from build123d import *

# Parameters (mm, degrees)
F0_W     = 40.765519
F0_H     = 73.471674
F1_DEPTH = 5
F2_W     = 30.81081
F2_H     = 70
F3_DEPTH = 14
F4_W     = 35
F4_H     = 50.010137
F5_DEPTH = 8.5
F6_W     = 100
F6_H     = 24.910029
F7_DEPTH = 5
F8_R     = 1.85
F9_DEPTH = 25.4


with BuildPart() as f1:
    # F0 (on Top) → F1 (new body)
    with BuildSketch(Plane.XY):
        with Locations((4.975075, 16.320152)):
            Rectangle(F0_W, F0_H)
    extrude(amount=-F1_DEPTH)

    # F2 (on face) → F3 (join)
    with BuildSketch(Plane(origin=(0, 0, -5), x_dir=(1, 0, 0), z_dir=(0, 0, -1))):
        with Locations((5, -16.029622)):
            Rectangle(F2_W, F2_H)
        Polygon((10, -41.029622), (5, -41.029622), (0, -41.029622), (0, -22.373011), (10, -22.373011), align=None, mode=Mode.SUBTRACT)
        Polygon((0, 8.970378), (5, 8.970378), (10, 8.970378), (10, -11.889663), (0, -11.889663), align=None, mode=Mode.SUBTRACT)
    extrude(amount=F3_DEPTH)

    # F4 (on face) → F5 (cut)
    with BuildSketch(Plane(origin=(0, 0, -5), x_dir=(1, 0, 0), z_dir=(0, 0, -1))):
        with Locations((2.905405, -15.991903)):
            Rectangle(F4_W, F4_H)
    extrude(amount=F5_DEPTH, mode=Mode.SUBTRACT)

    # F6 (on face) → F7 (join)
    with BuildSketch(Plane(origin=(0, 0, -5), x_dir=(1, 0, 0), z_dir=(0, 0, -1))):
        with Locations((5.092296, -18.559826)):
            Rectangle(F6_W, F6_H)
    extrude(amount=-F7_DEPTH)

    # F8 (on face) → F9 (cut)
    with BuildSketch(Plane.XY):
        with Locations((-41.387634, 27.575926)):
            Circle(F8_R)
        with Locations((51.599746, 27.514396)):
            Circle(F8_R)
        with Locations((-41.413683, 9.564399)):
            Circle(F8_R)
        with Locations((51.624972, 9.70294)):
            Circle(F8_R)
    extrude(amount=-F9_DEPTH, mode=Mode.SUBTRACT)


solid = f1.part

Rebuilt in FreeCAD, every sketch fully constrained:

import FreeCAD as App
import Part
import Sketcher

V = App.Vector

doc = App.newDocument("Part")
body = doc.addObject("PartDesign::Body", "Body")

# Sketch on XY plane
sketch1 = body.newObject("Sketcher::SketchObject", "Sketch")
sketch1.AttachmentSupport = (doc.getObject("XY_Plane"), [""])
sketch1.MapMode = "FlatFace"
sketch1.addGeometry(Part.LineSegment(V(-15.407685, 53.055989, 0), V(-15.407685, -20.415685, 0)), False)
sketch1.addGeometry(Part.LineSegment(V(-15.407685, -20.415685, 0), V(25.357834, -20.415685, 0)), False)
sketch1.addGeometry(Part.LineSegment(V(25.357834, -20.415685, 0), V(25.357834, 53.055989, 0)), False)
sketch1.addGeometry(Part.LineSegment(V(25.357834, 53.055989, 0), V(-15.407685, 53.055989, 0)), False)
sketch1.addConstraint(Sketcher.Constraint("Coincident", 0, 2, 1, 1))
sketch1.addConstraint(Sketcher.Constraint("Coincident", 1, 2, 2, 1))
sketch1.addConstraint(Sketcher.Constraint("Coincident", 2, 2, 3, 1))
sketch1.addConstraint(Sketcher.Constraint("Coincident", 3, 2, 0, 1))
sketch1.addConstraint(Sketcher.Constraint("Vertical", 0))
sketch1.addConstraint(Sketcher.Constraint("Horizontal", 1))
sketch1.addConstraint(Sketcher.Constraint("Vertical", 2))
sketch1.addConstraint(Sketcher.Constraint("Horizontal", 3))
sketch1.addConstraint(Sketcher.Constraint("DistanceX", 1, 1, 1, 2, 40.765519))
sketch1.addConstraint(Sketcher.Constraint("DistanceY", 0, 2, 0, 1, 73.471674))
sketch1.addConstraint(Sketcher.Constraint("DistanceY", -1, 1, 2, 2, 53.055989))
sketch1.addConstraint(Sketcher.Constraint("DistanceX", 0, 2, -1, 1, 15.407685))
pad1 = body.newObject("PartDesign::Pad", "Pad")
pad1.Profile = sketch1
pad1.Length = 5
pad1.Reversed = True

# Sketch on XY plane
sketch2 = body.newObject("Sketcher::SketchObject", "Sketch001")
sketch2.AttachmentSupport = (doc.getObject("XY_Plane"), [""])
sketch2.MapMode = "FlatFace"
sketch2.AttachmentOffset = App.Placement(V(0, 0, -5), App.Rotation())
sketch2.addGeometry(Part.LineSegment(V(-10.405405, -18.970378, 0), V(-10.405405, 51.029622, 0)), False)
sketch2.addGeometry(Part.LineSegment(V(-10.405405, 51.029622, 0), V(20.405405, 51.029622, 0)), False)
sketch2.addGeometry(Part.LineSegment(V(20.405405, 51.029622, 0), V(20.405405, -18.970378, 0)), False)
sketch2.addGeometry(Part.LineSegment(V(20.405405, -18.970378, 0), V(-10.405405, -18.970378, 0)), False)
sketch2.addGeometry(Part.LineSegment(V(10, 22.373011, 0), V(10, 41.029622, 0)), False)
sketch2.addGeometry(Part.LineSegment(V(10, 41.029622, 0), V(0, 41.029622, 0)), False)
sketch2.addGeometry(Part.LineSegment(V(0, 41.029622, 0), V(0, 22.373011, 0)), False)
sketch2.addGeometry(Part.LineSegment(V(0, 22.373011, 0), V(10, 22.373011, 0)), False)
sketch2.addGeometry(Part.LineSegment(V(0, 11.889663, 0), V(0, -8.970378, 0)), False)
sketch2.addGeometry(Part.LineSegment(V(0, -8.970378, 0), V(10, -8.970378, 0)), False)
sketch2.addGeometry(Part.LineSegment(V(10, -8.970378, 0), V(10, 11.889663, 0)), False)
sketch2.addGeometry(Part.LineSegment(V(10, 11.889663, 0), V(0, 11.889663, 0)), False)
sketch2.addConstraint(Sketcher.Constraint("Coincident", 0, 2, 1, 1))
sketch2.addConstraint(Sketcher.Constraint("Coincident", 1, 2, 2, 1))
sketch2.addConstraint(Sketcher.Constraint("Coincident", 2, 2, 3, 1))
sketch2.addConstraint(Sketcher.Constraint("Coincident", 3, 2, 0, 1))
sketch2.addConstraint(Sketcher.Constraint("Coincident", 4, 2, 5, 1))
sketch2.addConstraint(Sketcher.Constraint("Coincident", 5, 2, 6, 1))
sketch2.addConstraint(Sketcher.Constraint("Coincident", 6, 2, 7, 1))
sketch2.addConstraint(Sketcher.Constraint("Coincident", 7, 2, 4, 1))
sketch2.addConstraint(Sketcher.Constraint("Coincident", 8, 2, 9, 1))
sketch2.addConstraint(Sketcher.Constraint("Coincident", 9, 2, 10, 1))
sketch2.addConstraint(Sketcher.Constraint("Coincident", 10, 2, 11, 1))
sketch2.addConstraint(Sketcher.Constraint("Coincident", 11, 2, 8, 1))
sketch2.addConstraint(Sketcher.Constraint("Vertical", 0))
sketch2.addConstraint(Sketcher.Constraint("Horizontal", 1))
sketch2.addConstraint(Sketcher.Constraint("Vertical", 2))
sketch2.addConstraint(Sketcher.Constraint("Horizontal", 3))
sketch2.addConstraint(Sketcher.Constraint("Vertical", 4))
sketch2.addConstraint(Sketcher.Constraint("Horizontal", 5))
sketch2.addConstraint(Sketcher.Constraint("Vertical", 6))
sketch2.addConstraint(Sketcher.Constraint("Horizontal", 7))
sketch2.addConstraint(Sketcher.Constraint("Vertical", 8))
sketch2.addConstraint(Sketcher.Constraint("Horizontal", 9))
sketch2.addConstraint(Sketcher.Constraint("Vertical", 10))
sketch2.addConstraint(Sketcher.Constraint("Horizontal", 11))
sketch2.addConstraint(Sketcher.Constraint("PointOnObject", 5, 2, -2))
sketch2.addConstraint(Sketcher.Constraint("PointOnObject", 8, 2, -2))
sketch2.addConstraint(Sketcher.Constraint("Vertical", 7, 2, 9, 2))
sketch2.addConstraint(Sketcher.Constraint("DistanceX", 5, 2, 5, 1, 10.0))
sketch2.addConstraint(Sketcher.Constraint("DistanceY", 0, 1, 0, 2, 70.0))
sketch2.addConstraint(Sketcher.Constraint("DistanceY", 4, 2, 1, 2, 10.0))
sketch2.addConstraint(Sketcher.Constraint("DistanceY", 3, 2, 8, 2, 10.0))
sketch2.addConstraint(Sketcher.Constraint("DistanceX", 1, 1, 1, 2, 30.81081))
sketch2.addConstraint(Sketcher.Constraint("DistanceY", 4, 1, 4, 2, 18.656611))
sketch2.addConstraint(Sketcher.Constraint("DistanceY", 8, 2, 8, 1, 20.860041))
sketch2.addConstraint(Sketcher.Constraint("DistanceY", 2, 2, -1, 1, 18.970378))
sketch2.addConstraint(Sketcher.Constraint("DistanceX", 0, 2, -1, 1, 10.405405))
pad2 = body.newObject("PartDesign::Pad", "Pad001")
pad2.Profile = sketch2
pad2.Length = 14
pad2.Reversed = True

# Sketch on XY plane
sketch3 = body.newObject("Sketcher::SketchObject", "Sketch002")
sketch3.AttachmentSupport = (doc.getObject("XY_Plane"), [""])
sketch3.MapMode = "FlatFace"
sketch3.AttachmentOffset = App.Placement(V(0, 0, -5), App.Rotation())
sketch3.addGeometry(Part.LineSegment(V(-14.594595, -9.013165, 0), V(-14.594595, 40.996972, 0)), False)
sketch3.addGeometry(Part.LineSegment(V(-14.594595, 40.996972, 0), V(20.405405, 40.996972, 0)), False)
sketch3.addGeometry(Part.LineSegment(V(20.405405, 40.996972, 0), V(20.405405, -9.013165, 0)), False)
sketch3.addGeometry(Part.LineSegment(V(20.405405, -9.013165, 0), V(-14.594595, -9.013165, 0)), False)
sketch3.addConstraint(Sketcher.Constraint("Coincident", 0, 2, 1, 1))
sketch3.addConstraint(Sketcher.Constraint("Coincident", 1, 2, 2, 1))
sketch3.addConstraint(Sketcher.Constraint("Coincident", 2, 2, 3, 1))
sketch3.addConstraint(Sketcher.Constraint("Coincident", 3, 2, 0, 1))
sketch3.addConstraint(Sketcher.Constraint("Vertical", 0))
sketch3.addConstraint(Sketcher.Constraint("Horizontal", 1))
sketch3.addConstraint(Sketcher.Constraint("Vertical", 2))
sketch3.addConstraint(Sketcher.Constraint("Horizontal", 3))
sketch3.addConstraint(Sketcher.Constraint("DistanceX", 1, 1, 1, 2, 35.0))
sketch3.addConstraint(Sketcher.Constraint("DistanceY", 0, 1, 0, 2, 50.010137))
sketch3.addConstraint(Sketcher.Constraint("DistanceY", -1, 1, 0, 2, 40.996972))
sketch3.addConstraint(Sketcher.Constraint("DistanceX", 0, 2, -1, 1, 14.594595))
pocket1 = body.newObject("PartDesign::Pocket", "Pocket")
pocket1.Profile = sketch3
pocket1.Length = 8.5

# Sketch on XY plane
sketch4 = body.newObject("Sketcher::SketchObject", "Sketch003")
sketch4.AttachmentSupport = (doc.getObject("XY_Plane"), [""])
sketch4.MapMode = "FlatFace"
sketch4.AttachmentOffset = App.Placement(V(0, 0, -5), App.Rotation())
sketch4.addGeometry(Part.LineSegment(V(-44.907704, 6.104812, 0), V(-44.907704, 31.01484, 0)), False)
sketch4.addGeometry(Part.LineSegment(V(-44.907704, 31.01484, 0), V(55.092296, 31.01484, 0)), False)
sketch4.addGeometry(Part.LineSegment(V(55.092296, 31.01484, 0), V(55.092296, 6.104812, 0)), False)
sketch4.addGeometry(Part.LineSegment(V(55.092296, 6.104812, 0), V(-44.907704, 6.104812, 0)), False)
sketch4.addConstraint(Sketcher.Constraint("Coincident", 0, 2, 1, 1))
sketch4.addConstraint(Sketcher.Constraint("Coincident", 1, 2, 2, 1))
sketch4.addConstraint(Sketcher.Constraint("Coincident", 2, 2, 3, 1))
sketch4.addConstraint(Sketcher.Constraint("Coincident", 3, 2, 0, 1))
sketch4.addConstraint(Sketcher.Constraint("Vertical", 0))
sketch4.addConstraint(Sketcher.Constraint("Horizontal", 1))
sketch4.addConstraint(Sketcher.Constraint("Vertical", 2))
sketch4.addConstraint(Sketcher.Constraint("Horizontal", 3))
sketch4.addConstraint(Sketcher.Constraint("DistanceX", 1, 1, 1, 2, 100.0))
sketch4.addConstraint(Sketcher.Constraint("DistanceY", 0, 1, 0, 2, 24.910029))
sketch4.addConstraint(Sketcher.Constraint("DistanceY", -1, 1, 0, 2, 31.01484))
sketch4.addConstraint(Sketcher.Constraint("DistanceX", 0, 2, -1, 1, 44.907704))
pad3 = body.newObject("PartDesign::Pad", "Pad002")
pad3.Profile = sketch4
pad3.Length = 5

# Sketch on XY plane
sketch5 = body.newObject("Sketcher::SketchObject", "Sketch004")
sketch5.AttachmentSupport = (doc.getObject("XY_Plane"), [""])
sketch5.MapMode = "FlatFace"
sketch5.addGeometry(Part.Circle(V(-41.387634, 27.575926, 0), V(0, 0, 1), 1.85), False)
sketch5.addGeometry(Part.Circle(V(51.599746, 27.514396, 0), V(0, 0, 1), 1.85), False)
sketch5.addGeometry(Part.Circle(V(-41.413683, 9.564399, 0), V(0, 0, 1), 1.85), False)
sketch5.addGeometry(Part.Circle(V(51.624972, 9.70294, 0), V(0, 0, 1), 1.85), False)
sketch5.addConstraint(Sketcher.Constraint("Equal", 0, 1))
sketch5.addConstraint(Sketcher.Constraint("Equal", 1, 2))
sketch5.addConstraint(Sketcher.Constraint("Equal", 2, 3))
sketch5.addConstraint(Sketcher.Constraint("Diameter", 0, 3.7))
sketch5.addConstraint(Sketcher.Constraint("DistanceY", -1, 1, 2, 3, 9.564399))
sketch5.addConstraint(Sketcher.Constraint("DistanceY", -1, 1, 3, 3, 9.70294))
sketch5.addConstraint(Sketcher.Constraint("DistanceX", 0, 3, 1, 3, 92.98738))
sketch5.addConstraint(Sketcher.Constraint("DistanceY", 1, 3, 0, 3, 0.06153))
sketch5.addConstraint(Sketcher.Constraint("DistanceX", 2, 3, 0, 3, 0.026049))
sketch5.addConstraint(Sketcher.Constraint("DistanceX", 0, 3, -1, 1, 41.387634))
sketch5.addConstraint(Sketcher.Constraint("DistanceY", -1, 1, 0, 3, 27.575926))
sketch5.addConstraint(Sketcher.Constraint("DistanceX", -1, 1, 3, 3, 51.624972))
pocket2 = body.newObject("PartDesign::Pocket", "Pocket001")
pocket2.Profile = sketch5
pocket2.Length = 25.4

doc.recompute()
